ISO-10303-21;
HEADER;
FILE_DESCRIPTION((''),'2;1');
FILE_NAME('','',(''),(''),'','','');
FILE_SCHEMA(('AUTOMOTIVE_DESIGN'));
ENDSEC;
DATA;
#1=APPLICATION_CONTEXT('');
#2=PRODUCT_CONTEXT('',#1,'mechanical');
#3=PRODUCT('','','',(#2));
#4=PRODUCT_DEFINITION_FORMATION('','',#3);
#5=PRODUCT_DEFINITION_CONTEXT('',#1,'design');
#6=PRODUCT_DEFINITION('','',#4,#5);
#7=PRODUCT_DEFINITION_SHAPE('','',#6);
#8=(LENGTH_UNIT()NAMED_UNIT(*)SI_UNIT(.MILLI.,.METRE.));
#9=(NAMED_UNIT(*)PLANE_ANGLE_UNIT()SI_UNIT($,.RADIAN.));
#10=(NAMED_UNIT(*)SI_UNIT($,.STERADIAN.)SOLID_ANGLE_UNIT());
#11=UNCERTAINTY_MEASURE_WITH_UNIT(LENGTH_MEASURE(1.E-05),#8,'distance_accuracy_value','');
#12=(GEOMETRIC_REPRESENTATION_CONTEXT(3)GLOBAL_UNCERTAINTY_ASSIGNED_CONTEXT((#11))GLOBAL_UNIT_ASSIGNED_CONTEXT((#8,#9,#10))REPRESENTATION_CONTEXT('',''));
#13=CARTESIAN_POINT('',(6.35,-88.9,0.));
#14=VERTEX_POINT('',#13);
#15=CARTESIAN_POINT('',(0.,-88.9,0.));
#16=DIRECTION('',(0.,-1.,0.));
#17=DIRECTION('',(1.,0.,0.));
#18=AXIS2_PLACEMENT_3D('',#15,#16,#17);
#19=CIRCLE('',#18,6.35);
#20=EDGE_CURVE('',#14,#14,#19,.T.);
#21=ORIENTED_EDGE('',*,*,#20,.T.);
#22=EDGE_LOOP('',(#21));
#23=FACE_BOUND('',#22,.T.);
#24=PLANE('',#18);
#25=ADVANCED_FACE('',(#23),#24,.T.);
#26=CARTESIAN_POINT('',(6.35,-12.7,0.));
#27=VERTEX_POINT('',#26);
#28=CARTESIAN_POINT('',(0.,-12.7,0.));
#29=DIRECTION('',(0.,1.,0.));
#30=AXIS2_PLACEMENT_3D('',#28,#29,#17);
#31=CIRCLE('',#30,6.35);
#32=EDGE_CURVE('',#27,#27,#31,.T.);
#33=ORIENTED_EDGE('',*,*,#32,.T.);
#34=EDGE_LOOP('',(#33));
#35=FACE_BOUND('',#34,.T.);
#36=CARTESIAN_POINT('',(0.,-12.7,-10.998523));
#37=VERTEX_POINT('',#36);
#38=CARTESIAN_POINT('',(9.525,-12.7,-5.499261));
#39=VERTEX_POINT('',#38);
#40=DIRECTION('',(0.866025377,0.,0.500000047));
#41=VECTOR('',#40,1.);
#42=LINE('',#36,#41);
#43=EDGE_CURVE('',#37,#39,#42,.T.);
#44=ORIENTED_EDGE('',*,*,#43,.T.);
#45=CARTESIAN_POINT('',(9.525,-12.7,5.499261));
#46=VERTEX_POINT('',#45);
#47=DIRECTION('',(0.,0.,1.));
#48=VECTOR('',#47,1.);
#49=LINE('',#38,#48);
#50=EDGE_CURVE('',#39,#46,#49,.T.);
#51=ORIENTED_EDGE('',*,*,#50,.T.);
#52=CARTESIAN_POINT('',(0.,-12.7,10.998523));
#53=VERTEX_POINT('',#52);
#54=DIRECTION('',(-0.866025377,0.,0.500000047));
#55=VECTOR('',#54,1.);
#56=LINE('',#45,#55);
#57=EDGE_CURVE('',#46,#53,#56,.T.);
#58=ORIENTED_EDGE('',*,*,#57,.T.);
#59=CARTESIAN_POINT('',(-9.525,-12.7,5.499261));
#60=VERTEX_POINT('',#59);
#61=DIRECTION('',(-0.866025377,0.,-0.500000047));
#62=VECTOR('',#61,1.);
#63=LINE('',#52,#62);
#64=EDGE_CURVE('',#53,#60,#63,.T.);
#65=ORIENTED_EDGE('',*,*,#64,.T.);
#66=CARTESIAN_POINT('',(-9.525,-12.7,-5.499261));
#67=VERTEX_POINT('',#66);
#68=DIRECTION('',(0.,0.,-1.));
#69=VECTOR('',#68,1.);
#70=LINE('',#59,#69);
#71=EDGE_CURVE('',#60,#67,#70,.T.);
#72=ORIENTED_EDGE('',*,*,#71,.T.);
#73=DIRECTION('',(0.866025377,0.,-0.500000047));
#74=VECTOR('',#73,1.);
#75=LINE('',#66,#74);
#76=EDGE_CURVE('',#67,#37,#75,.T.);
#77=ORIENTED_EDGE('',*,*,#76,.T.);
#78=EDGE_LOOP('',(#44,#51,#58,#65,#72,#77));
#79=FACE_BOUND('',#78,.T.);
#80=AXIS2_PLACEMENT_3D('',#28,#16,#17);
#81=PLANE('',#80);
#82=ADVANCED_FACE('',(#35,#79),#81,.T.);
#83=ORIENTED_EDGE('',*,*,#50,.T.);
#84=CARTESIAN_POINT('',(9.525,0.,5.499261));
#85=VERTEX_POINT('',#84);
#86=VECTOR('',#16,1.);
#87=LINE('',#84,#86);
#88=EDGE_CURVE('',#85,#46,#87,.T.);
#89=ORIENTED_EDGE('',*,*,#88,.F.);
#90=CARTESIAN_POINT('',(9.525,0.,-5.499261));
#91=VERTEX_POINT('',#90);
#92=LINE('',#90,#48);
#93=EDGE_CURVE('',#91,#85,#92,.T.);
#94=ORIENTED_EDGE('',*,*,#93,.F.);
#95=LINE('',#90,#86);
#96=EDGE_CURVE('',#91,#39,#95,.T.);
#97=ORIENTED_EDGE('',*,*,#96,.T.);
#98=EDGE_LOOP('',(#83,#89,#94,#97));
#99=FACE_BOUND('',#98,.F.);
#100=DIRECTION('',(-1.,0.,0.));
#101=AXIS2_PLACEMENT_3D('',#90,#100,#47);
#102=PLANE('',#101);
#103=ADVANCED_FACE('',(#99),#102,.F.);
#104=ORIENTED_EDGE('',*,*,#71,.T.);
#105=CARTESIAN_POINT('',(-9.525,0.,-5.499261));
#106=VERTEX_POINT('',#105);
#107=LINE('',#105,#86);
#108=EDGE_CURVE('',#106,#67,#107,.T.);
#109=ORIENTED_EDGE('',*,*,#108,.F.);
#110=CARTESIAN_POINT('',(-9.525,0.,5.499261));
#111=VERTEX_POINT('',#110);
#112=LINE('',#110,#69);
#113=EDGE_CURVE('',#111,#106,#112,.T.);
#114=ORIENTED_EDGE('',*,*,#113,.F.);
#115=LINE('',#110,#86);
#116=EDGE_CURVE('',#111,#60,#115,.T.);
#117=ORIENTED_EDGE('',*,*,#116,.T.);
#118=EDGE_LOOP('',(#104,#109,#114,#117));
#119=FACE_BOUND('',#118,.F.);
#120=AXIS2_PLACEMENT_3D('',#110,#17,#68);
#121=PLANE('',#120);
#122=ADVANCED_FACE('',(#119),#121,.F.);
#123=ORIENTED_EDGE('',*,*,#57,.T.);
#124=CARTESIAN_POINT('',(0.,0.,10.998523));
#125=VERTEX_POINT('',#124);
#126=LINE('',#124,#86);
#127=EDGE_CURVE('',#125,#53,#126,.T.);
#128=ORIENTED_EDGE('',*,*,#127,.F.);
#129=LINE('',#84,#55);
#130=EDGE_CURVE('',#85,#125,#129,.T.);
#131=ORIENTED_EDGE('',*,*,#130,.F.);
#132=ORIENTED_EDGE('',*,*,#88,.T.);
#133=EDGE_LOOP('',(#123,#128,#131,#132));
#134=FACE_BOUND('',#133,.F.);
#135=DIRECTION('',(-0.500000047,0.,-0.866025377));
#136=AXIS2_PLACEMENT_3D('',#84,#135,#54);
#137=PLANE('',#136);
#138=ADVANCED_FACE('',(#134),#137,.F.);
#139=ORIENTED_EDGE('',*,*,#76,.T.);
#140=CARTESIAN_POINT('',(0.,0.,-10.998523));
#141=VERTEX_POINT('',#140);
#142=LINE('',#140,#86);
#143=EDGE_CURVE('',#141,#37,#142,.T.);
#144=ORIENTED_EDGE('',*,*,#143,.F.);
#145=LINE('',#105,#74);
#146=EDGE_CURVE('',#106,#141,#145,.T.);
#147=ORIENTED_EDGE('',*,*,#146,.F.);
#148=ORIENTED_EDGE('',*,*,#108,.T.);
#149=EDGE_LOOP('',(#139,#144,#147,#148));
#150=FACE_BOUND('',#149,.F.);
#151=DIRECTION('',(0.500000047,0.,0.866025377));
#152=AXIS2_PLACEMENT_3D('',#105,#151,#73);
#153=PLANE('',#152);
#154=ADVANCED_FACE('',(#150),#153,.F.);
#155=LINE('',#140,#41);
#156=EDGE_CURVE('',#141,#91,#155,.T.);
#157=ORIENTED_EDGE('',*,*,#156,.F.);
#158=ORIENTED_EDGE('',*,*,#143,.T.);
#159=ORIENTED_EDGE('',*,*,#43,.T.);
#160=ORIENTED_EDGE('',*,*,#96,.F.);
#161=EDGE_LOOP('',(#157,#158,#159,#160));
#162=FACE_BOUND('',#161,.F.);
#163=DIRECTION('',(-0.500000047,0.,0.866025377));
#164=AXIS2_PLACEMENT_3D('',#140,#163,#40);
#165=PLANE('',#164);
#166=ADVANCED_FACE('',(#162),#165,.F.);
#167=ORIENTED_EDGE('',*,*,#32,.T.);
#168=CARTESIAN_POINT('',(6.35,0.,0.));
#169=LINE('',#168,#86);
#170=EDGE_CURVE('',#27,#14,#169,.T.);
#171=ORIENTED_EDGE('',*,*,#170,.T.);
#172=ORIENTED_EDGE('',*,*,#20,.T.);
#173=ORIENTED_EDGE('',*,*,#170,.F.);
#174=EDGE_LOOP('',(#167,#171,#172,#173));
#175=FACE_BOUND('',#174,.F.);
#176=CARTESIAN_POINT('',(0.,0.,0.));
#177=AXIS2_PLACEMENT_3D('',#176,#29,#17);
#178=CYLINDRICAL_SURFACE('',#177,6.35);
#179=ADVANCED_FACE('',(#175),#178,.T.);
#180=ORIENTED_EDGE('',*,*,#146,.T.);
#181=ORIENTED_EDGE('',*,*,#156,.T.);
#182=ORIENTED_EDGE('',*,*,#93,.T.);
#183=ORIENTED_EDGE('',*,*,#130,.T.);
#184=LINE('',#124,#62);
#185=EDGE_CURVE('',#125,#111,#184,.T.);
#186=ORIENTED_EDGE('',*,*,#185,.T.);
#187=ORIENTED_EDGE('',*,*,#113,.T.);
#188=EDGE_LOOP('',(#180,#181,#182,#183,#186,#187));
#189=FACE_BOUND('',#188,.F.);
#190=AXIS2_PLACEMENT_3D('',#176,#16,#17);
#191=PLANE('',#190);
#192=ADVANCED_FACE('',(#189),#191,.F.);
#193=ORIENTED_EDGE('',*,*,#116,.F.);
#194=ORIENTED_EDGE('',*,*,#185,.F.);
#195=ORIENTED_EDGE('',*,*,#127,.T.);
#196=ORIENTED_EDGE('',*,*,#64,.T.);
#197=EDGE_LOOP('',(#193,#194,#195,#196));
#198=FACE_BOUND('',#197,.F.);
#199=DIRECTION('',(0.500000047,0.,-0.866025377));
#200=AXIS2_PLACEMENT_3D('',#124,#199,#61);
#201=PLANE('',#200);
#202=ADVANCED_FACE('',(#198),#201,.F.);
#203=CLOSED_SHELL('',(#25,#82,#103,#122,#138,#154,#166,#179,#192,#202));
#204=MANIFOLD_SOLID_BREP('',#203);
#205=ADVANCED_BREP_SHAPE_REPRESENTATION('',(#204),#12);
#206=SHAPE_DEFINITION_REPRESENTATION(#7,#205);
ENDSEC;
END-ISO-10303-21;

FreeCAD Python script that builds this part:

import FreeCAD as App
import Part
import Sketcher
from FreeCAD import Vector
Q = App.Units.Quantity


def add_polygon(sketch, points):
    """Adds a closed chain of lines whose ends are joined by coincident constraints."""
    first, n = sketch.GeometryCount, len(points)
    for a, b in zip(points, points[1:] + points[:1]):
        sketch.addGeometry(Part.LineSegment(App.Vector(*a, 0), App.Vector(*b, 0)), False)
    for i in range(n):
        sketch.addConstraint(Sketcher.Constraint("Coincident", first + i, 2, first + (i + 1) % n, 1))

doc = App.newDocument("Part")
params = doc.addObject("Spreadsheet::Sheet", "Params")
for row, (alias, value) in enumerate([
    ("sketch1_diameter", "0.5 in"),
    ("pad1_length", "3.5 in"),
    ("pad2_length", "0.5 in"),
], start=1):
    params.set(f"A{row}", alias)
    params.set(f"B{row}", "=" + value)
    params.setAlias(f"B{row}", alias)

body = doc.addObject("PartDesign::Body", "Body")

sketch1 = body.newObject("Sketcher::SketchObject", "Sketch")
sketch1.AttachmentSupport = (doc.getObject("XZ_Plane"), [""])
sketch1.MapMode = "FlatFace"
sketch1.addGeometry(Part.Circle(Vector(0, 0, 0), Vector(0, 0, 1), 6), False)
sketch1.addConstraint(Sketcher.Constraint("Coincident", 0, 3, -1, 1))
sketch1.addConstraint(Sketcher.Constraint("Diameter", 0, Q("0.5 in")))
sketch1.setExpression("Constraints[1]", "Params.sketch1_diameter")
pad1 = body.newObject("PartDesign::Pad", "Pad")
pad1.Profile = sketch1
pad1.setExpression("Length", "Params.pad1_length")

sketch2 = body.newObject("Sketcher::SketchObject", "Sketch001")
sketch2.AttachmentSupport = (doc.getObject("XZ_Plane"), [""])
sketch2.MapMode = "FlatFace"
add_polygon(sketch2, [(-10, 5), (-10, -5), (0, -11), (10, -5), (10, 5), (0, 11)])
sketch2.addConstraint(Sketcher.Constraint("Vertical", 0))
sketch2.addConstraint(Sketcher.Constraint("Vertical", 3))
sketch2.addConstraint(Sketcher.Constraint("Symmetric", 0, 2, 3, 2, -1, 1))
sketch2.addConstraint(Sketcher.Constraint("Symmetric", 1, 2, 4, 2, -1, 1))
sketch2.addConstraint(Sketcher.Constraint("PointOnObject", 1, 2, -2))
sketch2.addConstraint(Sketcher.Constraint("Parallel", 2, 5))
sketch2.addConstraint(Sketcher.Constraint("Horizontal", 0, 2, 2, 2))
sketch2.addConstraint(Sketcher.Constraint("Angle", 1, Q("-30.000003 deg")))
sketch2.addConstraint(Sketcher.Constraint("DistanceX", 0, 2, 2, 2, Q("0.75 in")))
sketch2.addConstraint(Sketcher.Constraint("DistanceY", 0, 2, 0, 1, Q("10.998522 mm")))
pad2 = body.newObject("PartDesign::Pad", "Pad001")
pad2.Profile = sketch2
pad2.setExpression("Length", "Params.pad2_length")

doc.recompute()
